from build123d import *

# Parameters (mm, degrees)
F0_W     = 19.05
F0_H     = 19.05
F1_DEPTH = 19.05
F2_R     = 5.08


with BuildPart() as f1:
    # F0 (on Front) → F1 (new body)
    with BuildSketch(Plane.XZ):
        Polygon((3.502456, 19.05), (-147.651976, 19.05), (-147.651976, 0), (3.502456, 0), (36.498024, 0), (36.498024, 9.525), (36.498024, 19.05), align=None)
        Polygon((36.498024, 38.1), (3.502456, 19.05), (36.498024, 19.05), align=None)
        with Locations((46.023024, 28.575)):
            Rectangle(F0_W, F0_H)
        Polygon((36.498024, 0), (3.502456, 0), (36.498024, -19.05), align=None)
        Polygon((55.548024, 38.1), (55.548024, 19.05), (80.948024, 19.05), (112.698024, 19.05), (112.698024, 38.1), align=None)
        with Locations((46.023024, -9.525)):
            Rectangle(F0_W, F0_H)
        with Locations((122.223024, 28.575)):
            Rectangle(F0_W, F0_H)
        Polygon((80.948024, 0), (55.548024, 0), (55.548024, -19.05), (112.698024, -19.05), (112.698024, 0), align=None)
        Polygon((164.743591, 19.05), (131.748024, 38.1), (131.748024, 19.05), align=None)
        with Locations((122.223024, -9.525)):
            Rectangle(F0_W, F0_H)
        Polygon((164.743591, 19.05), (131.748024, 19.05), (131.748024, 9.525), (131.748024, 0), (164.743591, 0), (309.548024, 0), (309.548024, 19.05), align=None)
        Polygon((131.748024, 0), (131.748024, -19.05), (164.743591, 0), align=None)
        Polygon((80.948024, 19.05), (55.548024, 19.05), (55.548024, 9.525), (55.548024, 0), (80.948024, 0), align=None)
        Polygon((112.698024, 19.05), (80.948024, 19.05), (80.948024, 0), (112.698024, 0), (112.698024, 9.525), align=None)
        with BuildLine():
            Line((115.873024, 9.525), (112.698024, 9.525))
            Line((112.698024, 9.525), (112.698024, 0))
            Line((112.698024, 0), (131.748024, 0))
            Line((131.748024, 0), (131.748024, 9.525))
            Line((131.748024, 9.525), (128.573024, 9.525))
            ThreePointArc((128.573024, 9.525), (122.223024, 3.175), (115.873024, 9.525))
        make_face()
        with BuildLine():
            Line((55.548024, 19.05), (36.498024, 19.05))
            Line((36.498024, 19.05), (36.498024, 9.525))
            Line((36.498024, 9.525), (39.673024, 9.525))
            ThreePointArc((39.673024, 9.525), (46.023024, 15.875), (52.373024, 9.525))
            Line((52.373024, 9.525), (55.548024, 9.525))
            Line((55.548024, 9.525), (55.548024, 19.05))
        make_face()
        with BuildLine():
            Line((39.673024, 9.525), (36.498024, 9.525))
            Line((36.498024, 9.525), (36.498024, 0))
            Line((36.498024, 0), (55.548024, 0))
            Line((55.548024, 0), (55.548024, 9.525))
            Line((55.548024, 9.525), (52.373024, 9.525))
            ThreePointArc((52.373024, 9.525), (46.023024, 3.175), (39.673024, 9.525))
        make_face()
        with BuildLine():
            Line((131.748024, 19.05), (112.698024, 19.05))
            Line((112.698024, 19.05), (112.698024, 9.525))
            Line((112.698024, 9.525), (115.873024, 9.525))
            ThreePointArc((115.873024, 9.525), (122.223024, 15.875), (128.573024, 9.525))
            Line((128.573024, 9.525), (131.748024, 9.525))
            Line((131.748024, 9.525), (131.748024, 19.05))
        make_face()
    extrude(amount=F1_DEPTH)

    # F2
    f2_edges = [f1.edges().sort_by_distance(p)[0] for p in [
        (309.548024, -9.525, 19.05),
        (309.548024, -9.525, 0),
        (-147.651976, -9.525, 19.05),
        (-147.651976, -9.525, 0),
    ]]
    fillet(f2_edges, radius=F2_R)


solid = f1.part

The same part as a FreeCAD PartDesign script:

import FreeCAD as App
import Part
import Sketcher
Q = App.Units.Quantity


def edges_at(feature, points):
    """Names of the edges that pass closest to the given points."""
    edges = feature.Shape.Edges
    near = lambda p: min(range(len(edges)), key=lambda i: edges[i].distToShape(Part.Vertex(*p))[0])
    return sorted({f"Edge{near(p) + 1}" for p in points})

doc = App.newDocument("Part")
body = doc.addObject("PartDesign::Body", "Body")

# Sketch on XZ plane
sketch1 = body.newObject("Sketcher::SketchObject", "Sketch")
sketch1.AttachmentSupport = (doc.getObject("XZ_Plane"), [""])
sketch1.MapMode = "FlatFace"
sketch1.addGeometry([
    Part.LineSegment(App.Vector(36.498024, -19.05, 0), App.Vector(131.748024, -19.05, 0)),  # 0
    Part.LineSegment(App.Vector(131.748024, -19.05, 0), App.Vector(164.743591, 0, 0)),  # 1
    Part.LineSegment(App.Vector(164.743591, 0, 0), App.Vector(309.548024, 0, 0)),  # 2
    Part.LineSegment(App.Vector(309.548024, 0, 0), App.Vector(309.548024, 19.05, 0)),  # 3
    Part.LineSegment(App.Vector(309.548024, 19.05, 0), App.Vector(164.743591, 19.05, 0)),  # 4
    Part.LineSegment(App.Vector(164.743591, 19.05, 0), App.Vector(131.748024, 38.1, 0)),  # 5
    Part.LineSegment(App.Vector(131.748024, 38.1, 0), App.Vector(36.498024, 38.1, 0)),  # 6
    Part.LineSegment(App.Vector(36.498024, 38.1, 0), App.Vector(3.502456, 19.05, 0)),  # 7
    Part.LineSegment(App.Vector(3.502456, 19.05, 0), App.Vector(-147.651976, 19.05, 0)),  # 8
    Part.LineSegment(App.Vector(-147.651976, 19.05, 0), App.Vector(-147.651976, 0, 0)),  # 9
    Part.LineSegment(App.Vector(-147.651976, 0, 0), App.Vector(3.502456, 0, 0)),  # 10
    Part.LineSegment(App.Vector(3.502456, 0, 0), App.Vector(36.498024, -19.05, 0)),  # 11
    Part.Circle(App.Vector(122.223024, 9.525, 0), App.Vector(0, 0, 1), 6.35),  # 12
    Part.Circle(App.Vector(46.023024, 9.525, 0), App.Vector(0, 0, 1), 6.35),  # 13
], False)
sketch1.addConstraint([
    Sketcher.Constraint("Coincident", 0, 2, 1, 1),
    Sketcher.Constraint("Coincident", 1, 2, 2, 1),
    Sketcher.Constraint("Coincident", 2, 2, 3, 1),
    Sketcher.Constraint("Coincident", 3, 2, 4, 1),
    Sketcher.Constraint("Coincident", 4, 2, 5, 1),
    Sketcher.Constraint("Coincident", 5, 2, 6, 1),
    Sketcher.Constraint("Coincident", 6, 2, 7, 1),
    Sketcher.Constraint("Coincident", 7, 2, 8, 1),
    Sketcher.Constraint("Coincident", 8, 2, 9, 1),
    Sketcher.Constraint("Coincident", 9, 2, 10, 1),
    Sketcher.Constraint("Coincident", 10, 2, 11, 1),
    Sketcher.Constraint("Coincident", 11, 2, 0, 1),
    Sketcher.Constraint("Horizontal", 0),
    Sketcher.Constraint("Horizontal", 2),
    Sketcher.Constraint("Vertical", 3),
    Sketcher.Constraint("Horizontal", 4),
    Sketcher.Constraint("Horizontal", 6),
    Sketcher.Constraint("Horizontal", 8),
    Sketcher.Constraint("Vertical", 9),
    Sketcher.Constraint("Horizontal", 10),
    Sketcher.Constraint("Equal", 12, 13),
    Sketcher.Constraint("PointOnObject", 1, 2, -1),
    Sketcher.Constraint("PointOnObject", 9, 2, -1),
    Sketcher.Constraint("Parallel", 1, 7),
    Sketcher.Constraint("Parallel", 5, 11),
    Sketcher.Constraint("Horizontal", 12, 3, 13, 3),
    Sketcher.Constraint("Horizontal", 4, 2, 7, 2),
    Sketcher.Constraint("Vertical", 1, 2, 4, 2),
    Sketcher.Constraint("Vertical", 0, 2, 5, 2),
    Sketcher.Constraint("Vertical", 7, 2, 10, 2),
    Sketcher.Constraint("Vertical", 6, 2, 11, 2),
    Sketcher.Constraint("Diameter", 12, Q("0.5 in")),
    Sketcher.Constraint("Angle", 1, Q("30.000001 deg")),
    Sketcher.Constraint("DistanceX", 13, 3, 12, 3, Q("3 in")),
    Sketcher.Constraint("DistanceX", 0, 2, 2, 2, Q("7 in")),
    Sketcher.Constraint("DistanceX", 8, 2, 5, 2, Q("11 in")),
    Sketcher.Constraint("Distance", 1, Q("1.5 in")),
    Sketcher.Constraint("DistanceX", 0, 1, 0, 2, Q("3.75 in")),
    Sketcher.Constraint("DistanceY", 3, 1, 3, 2, Q("0.75 in")),
    Sketcher.Constraint("DistanceY", -1, 1, 12, 3, Q("0.375 in")),
    Sketcher.Constraint("DistanceX", 12, 3, 0, 2, Q("0.375 in")),
    Sketcher.Constraint("DistanceX", -1, 1, 1, 2, Q("164.743591 mm")),
])
pad1 = body.newObject("PartDesign::Pad", "Pad")
pad1.Profile = sketch1
pad1.Length = Q("0.75 in")
doc.recompute()

fillet = body.newObject("PartDesign::Fillet", "Fillet")
fillet.Base = (pad1, edges_at(pad1, [
    (309.548, -9.525, 19.05),
    (309.548, -9.525, 0),
    (-147.652, -9.525, 19.05),
    (-147.652, -9.525, 0),
]))
fillet.Radius = Q("0.2 in")

doc.recompute()
